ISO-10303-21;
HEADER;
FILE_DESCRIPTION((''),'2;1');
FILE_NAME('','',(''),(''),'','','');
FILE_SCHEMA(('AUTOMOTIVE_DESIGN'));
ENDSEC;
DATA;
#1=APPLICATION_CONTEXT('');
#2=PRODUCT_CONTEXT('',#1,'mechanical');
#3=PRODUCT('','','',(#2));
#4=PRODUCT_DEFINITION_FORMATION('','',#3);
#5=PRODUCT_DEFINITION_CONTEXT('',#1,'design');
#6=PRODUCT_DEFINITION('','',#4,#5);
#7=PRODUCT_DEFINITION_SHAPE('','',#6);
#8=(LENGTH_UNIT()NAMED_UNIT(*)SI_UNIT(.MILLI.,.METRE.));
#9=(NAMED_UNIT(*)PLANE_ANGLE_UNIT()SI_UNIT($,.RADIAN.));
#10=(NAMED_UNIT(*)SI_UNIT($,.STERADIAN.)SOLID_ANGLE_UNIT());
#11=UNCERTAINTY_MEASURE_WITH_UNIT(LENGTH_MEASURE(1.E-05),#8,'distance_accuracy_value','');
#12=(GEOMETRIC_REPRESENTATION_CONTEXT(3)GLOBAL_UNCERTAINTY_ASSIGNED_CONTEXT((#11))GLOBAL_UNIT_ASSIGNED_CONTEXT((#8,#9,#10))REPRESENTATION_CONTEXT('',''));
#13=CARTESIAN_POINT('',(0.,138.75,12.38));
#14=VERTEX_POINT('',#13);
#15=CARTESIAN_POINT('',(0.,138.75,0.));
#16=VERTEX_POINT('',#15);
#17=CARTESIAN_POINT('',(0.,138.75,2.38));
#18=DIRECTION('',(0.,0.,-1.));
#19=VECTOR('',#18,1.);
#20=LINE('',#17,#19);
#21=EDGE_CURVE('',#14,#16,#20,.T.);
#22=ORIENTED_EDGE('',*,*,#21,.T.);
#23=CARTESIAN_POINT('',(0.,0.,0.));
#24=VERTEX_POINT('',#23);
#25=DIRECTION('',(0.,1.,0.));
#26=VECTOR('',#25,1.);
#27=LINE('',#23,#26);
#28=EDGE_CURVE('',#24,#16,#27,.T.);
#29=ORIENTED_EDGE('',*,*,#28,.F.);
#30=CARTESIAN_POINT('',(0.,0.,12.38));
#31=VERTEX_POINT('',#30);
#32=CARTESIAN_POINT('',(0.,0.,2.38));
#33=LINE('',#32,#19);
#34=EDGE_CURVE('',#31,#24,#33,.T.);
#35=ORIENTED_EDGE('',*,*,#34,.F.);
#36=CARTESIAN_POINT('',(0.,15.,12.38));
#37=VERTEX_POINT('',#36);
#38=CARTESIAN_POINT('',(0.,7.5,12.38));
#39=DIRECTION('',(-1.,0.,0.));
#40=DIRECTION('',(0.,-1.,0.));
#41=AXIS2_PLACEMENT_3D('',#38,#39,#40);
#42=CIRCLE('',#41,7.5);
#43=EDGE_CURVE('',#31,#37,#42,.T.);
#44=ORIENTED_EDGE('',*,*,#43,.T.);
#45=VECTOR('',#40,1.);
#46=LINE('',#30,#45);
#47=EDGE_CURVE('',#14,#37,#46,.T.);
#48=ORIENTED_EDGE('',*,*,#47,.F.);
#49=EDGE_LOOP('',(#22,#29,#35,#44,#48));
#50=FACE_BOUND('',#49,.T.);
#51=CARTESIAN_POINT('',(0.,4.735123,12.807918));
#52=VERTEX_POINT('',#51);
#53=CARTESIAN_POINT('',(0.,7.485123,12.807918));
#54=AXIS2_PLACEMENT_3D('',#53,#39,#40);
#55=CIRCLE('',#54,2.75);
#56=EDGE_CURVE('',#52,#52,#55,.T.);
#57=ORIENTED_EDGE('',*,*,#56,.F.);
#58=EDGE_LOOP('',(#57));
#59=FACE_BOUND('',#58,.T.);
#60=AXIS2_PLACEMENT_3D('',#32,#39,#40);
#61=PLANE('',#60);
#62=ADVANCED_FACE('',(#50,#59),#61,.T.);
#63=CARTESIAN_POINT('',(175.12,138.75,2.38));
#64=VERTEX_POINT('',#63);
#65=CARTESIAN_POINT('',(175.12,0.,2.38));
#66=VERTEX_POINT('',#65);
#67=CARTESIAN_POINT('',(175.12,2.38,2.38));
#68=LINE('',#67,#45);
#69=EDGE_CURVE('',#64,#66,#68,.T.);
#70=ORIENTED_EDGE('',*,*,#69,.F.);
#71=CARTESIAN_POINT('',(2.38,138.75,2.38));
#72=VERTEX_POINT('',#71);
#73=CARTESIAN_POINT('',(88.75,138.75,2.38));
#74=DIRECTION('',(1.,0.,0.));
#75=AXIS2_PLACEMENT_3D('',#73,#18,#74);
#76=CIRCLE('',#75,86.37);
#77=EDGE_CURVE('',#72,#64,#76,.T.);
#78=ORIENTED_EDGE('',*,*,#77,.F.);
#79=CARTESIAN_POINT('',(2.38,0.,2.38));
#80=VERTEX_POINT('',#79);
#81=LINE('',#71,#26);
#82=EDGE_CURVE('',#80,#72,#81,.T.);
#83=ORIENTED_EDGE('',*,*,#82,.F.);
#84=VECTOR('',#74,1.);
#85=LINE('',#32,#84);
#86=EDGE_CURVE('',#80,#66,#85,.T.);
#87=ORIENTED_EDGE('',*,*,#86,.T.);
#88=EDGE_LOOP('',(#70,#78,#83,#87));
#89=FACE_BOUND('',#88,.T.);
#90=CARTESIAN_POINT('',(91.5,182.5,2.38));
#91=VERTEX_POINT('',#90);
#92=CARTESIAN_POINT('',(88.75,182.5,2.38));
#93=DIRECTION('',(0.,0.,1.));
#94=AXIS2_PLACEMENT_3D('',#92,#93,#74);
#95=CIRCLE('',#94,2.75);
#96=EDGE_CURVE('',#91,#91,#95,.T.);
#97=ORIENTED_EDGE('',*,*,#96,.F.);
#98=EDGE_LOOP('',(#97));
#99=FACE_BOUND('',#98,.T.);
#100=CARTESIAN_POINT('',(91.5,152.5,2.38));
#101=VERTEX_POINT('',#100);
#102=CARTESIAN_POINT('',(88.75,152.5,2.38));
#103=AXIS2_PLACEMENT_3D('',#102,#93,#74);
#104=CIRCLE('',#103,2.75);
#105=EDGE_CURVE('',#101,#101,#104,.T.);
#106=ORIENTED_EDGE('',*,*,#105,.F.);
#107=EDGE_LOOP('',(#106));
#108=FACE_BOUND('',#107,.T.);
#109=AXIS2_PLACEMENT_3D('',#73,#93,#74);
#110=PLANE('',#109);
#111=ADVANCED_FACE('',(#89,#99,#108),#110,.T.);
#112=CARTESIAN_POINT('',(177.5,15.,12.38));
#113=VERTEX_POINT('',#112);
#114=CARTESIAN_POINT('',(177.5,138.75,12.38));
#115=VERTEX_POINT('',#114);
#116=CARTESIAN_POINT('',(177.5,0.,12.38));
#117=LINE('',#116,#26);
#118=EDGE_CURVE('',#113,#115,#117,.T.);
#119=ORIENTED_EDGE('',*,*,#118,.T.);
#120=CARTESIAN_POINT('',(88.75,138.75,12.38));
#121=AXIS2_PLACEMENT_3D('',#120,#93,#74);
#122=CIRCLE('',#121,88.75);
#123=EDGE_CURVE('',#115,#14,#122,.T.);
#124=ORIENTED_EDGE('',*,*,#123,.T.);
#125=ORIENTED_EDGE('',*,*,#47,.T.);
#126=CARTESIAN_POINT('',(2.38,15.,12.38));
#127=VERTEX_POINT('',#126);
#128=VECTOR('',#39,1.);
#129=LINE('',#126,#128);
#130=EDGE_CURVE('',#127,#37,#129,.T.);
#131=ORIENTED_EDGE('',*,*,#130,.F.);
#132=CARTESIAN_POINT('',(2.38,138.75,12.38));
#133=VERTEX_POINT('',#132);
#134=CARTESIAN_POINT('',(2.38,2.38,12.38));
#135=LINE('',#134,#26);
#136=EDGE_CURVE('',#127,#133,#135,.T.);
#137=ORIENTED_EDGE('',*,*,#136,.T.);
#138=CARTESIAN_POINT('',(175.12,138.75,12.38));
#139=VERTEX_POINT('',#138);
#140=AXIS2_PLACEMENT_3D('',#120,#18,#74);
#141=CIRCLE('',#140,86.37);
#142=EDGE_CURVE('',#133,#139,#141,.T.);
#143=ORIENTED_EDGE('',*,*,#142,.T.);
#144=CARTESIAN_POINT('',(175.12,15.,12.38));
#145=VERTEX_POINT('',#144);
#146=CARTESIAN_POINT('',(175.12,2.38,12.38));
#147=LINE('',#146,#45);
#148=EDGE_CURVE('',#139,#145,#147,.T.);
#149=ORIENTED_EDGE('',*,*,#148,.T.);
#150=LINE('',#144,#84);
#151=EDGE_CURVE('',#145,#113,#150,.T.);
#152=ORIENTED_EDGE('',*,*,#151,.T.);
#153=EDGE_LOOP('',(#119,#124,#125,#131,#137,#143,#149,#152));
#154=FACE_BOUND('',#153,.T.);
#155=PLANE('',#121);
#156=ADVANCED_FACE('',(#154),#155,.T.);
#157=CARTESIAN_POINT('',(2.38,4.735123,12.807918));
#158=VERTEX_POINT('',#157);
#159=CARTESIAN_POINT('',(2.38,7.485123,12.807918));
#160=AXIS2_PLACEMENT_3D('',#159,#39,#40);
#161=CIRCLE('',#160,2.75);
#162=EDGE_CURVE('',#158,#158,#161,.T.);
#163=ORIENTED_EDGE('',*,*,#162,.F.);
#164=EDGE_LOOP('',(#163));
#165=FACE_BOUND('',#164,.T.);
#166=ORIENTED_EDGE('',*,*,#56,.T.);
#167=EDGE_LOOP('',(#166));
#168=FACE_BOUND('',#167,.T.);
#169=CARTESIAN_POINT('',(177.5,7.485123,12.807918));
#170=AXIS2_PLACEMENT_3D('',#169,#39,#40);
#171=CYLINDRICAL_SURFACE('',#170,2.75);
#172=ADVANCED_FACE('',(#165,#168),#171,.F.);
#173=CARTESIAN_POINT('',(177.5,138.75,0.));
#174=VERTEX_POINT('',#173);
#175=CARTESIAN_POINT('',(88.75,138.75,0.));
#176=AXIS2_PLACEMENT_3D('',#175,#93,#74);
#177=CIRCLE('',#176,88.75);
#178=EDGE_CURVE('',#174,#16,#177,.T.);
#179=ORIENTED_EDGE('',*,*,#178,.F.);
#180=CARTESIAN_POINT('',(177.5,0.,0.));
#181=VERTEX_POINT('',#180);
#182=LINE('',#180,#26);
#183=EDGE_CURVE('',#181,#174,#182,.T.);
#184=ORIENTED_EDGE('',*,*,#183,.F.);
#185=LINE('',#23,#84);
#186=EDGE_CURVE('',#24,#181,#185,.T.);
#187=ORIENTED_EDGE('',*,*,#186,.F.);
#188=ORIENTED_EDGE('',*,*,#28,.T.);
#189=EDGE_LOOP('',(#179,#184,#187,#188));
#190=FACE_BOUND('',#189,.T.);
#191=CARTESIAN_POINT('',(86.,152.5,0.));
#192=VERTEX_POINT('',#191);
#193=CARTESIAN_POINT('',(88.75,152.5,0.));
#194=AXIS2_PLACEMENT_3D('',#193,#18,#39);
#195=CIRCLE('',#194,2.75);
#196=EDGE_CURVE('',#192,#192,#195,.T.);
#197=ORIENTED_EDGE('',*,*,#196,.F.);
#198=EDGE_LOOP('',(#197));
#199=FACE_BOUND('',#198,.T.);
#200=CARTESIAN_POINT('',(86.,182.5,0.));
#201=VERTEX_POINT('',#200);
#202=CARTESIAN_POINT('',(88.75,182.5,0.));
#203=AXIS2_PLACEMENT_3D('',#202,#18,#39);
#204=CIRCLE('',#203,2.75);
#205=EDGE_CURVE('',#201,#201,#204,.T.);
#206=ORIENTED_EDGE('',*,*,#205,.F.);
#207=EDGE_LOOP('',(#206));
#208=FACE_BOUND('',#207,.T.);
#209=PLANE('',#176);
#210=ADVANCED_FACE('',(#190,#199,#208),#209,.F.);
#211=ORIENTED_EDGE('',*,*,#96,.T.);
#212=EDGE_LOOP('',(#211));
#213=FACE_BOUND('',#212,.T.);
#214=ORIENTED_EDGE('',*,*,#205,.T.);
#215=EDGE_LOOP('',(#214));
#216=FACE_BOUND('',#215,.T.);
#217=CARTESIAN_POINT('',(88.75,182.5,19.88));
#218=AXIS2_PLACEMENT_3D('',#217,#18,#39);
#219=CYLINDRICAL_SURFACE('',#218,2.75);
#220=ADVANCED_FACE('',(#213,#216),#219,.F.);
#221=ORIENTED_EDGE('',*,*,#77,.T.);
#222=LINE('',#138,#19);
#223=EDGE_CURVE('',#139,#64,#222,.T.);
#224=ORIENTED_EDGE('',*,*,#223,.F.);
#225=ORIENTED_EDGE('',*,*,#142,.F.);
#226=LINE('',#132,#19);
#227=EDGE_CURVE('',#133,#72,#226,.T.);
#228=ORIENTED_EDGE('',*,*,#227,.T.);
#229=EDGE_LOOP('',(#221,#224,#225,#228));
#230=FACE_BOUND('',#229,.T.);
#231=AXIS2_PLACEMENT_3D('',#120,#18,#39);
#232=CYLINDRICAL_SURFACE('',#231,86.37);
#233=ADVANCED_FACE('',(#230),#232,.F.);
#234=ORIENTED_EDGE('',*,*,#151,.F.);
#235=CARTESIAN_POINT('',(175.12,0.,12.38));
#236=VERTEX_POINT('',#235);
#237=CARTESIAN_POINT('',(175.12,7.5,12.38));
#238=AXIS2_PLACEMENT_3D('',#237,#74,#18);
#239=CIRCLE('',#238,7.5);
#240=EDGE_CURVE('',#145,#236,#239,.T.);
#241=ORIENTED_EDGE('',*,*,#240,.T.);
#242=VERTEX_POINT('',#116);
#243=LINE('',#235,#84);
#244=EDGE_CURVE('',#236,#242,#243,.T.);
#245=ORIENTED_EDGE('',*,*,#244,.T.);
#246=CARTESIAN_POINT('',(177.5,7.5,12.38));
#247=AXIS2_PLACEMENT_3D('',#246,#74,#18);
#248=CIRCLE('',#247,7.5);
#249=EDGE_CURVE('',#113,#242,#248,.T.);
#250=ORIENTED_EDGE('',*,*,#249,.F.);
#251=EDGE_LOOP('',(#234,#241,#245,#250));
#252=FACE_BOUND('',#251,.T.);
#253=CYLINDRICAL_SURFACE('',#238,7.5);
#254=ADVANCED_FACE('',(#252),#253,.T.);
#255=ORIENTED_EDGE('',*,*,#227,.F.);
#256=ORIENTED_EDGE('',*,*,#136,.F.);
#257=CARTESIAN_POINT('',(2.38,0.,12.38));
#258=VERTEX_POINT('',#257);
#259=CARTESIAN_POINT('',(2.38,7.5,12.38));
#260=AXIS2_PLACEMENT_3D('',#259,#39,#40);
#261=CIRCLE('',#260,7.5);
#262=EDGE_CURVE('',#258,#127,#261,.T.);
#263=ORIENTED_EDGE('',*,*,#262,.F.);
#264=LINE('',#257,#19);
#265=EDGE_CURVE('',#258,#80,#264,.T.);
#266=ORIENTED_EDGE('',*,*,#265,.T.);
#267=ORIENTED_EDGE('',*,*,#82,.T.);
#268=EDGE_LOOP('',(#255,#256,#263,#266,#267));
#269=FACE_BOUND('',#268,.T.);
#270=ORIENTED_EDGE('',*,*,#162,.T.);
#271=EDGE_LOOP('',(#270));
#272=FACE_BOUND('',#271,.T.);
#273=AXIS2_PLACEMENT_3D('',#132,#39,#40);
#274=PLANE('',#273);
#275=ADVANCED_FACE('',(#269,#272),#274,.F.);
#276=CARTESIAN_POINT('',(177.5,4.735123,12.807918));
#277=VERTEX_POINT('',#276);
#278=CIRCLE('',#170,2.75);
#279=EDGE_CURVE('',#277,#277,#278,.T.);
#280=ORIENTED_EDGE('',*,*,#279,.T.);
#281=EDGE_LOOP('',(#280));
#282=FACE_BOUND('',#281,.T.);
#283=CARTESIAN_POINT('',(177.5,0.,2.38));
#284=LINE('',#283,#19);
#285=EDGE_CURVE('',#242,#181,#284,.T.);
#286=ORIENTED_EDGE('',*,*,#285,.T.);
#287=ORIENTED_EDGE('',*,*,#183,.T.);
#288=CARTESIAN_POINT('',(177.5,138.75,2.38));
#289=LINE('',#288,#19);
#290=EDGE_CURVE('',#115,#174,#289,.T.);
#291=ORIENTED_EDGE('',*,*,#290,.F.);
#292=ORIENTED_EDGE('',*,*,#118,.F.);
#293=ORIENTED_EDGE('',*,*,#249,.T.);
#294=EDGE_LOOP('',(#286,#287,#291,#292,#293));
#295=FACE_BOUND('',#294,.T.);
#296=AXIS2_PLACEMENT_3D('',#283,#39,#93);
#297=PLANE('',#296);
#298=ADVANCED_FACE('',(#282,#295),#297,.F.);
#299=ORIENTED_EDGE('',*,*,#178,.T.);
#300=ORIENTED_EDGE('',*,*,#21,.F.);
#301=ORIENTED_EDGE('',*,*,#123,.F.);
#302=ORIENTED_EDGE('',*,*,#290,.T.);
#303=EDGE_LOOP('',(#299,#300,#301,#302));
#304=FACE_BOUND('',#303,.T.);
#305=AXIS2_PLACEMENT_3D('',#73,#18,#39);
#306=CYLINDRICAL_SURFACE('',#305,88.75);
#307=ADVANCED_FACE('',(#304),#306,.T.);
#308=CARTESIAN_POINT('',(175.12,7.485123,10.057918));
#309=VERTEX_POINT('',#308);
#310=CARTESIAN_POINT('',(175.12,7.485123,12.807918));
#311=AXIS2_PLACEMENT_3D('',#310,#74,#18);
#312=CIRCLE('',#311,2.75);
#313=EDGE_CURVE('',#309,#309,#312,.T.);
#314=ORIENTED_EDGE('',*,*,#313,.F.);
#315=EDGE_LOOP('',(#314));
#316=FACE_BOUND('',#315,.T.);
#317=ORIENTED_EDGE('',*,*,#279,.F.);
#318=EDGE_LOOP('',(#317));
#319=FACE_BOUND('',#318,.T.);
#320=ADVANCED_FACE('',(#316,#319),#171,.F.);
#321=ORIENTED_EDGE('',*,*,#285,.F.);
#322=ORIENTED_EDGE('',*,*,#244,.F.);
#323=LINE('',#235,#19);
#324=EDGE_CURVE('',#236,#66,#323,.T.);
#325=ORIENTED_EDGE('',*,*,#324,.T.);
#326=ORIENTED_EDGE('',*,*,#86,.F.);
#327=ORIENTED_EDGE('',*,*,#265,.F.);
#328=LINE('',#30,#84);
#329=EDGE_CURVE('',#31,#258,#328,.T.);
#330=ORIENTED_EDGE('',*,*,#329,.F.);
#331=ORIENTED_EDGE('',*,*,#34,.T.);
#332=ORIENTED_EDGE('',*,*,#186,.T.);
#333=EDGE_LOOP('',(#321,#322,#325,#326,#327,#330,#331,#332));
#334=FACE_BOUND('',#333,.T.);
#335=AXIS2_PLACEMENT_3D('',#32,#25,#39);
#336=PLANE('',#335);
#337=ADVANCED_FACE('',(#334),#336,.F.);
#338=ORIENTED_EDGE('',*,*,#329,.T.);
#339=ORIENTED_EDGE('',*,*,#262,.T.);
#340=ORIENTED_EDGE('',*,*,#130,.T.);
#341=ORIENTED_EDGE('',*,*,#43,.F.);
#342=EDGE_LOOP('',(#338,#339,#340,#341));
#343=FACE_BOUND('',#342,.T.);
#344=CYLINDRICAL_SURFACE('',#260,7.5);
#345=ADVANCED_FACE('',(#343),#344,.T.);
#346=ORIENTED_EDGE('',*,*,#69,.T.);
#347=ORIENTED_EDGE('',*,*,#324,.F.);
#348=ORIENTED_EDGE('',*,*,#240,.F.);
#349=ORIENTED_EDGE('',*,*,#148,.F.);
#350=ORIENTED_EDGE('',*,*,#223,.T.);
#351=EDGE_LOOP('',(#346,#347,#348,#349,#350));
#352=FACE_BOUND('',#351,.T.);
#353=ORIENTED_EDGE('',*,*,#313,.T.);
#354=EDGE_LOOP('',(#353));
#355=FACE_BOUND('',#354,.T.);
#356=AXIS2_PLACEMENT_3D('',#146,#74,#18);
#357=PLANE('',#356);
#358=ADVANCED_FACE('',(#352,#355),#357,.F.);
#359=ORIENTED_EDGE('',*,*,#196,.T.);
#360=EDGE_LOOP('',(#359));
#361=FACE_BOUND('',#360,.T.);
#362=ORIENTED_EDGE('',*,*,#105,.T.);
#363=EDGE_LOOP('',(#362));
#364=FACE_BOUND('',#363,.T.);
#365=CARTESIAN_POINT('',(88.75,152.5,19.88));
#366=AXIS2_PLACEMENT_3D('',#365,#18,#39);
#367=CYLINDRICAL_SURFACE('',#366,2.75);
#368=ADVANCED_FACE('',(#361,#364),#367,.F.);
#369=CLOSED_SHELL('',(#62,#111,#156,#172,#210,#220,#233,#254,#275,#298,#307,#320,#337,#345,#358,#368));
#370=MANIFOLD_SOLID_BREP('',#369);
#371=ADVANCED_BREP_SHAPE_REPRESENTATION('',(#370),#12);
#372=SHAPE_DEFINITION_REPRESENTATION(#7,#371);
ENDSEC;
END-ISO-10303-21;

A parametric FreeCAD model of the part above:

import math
import FreeCAD as App
import Part
import Sketcher

V = App.Vector
Q = App.Units.Quantity

doc = App.newDocument("Part")
body = doc.addObject("PartDesign::Body", "Body")

sketch1 = body.newObject("Sketcher::SketchObject", "Sketch")
sketch1.AttachmentSupport = (doc.getObject("XY_Plane"), [""])
sketch1.MapMode = "FlatFace"
sketch1.addGeometry([
    Part.LineSegment(V(0, 0, 0), V(178, 0, 0)),
    Part.LineSegment(V(178, 0, 0), V(178, 139, 0)),
    Part.ArcOfCircle(Part.Circle(V(89, 139, 0), V(0, 0, 1), 89), math.radians(0), math.radians(180)),
    Part.LineSegment(V(0, 139, 0), V(0, 0, 0)),
], False)
sketch1.addConstraint([
    Sketcher.Constraint("Coincident", 0, 2, 1, 1),
    Sketcher.Constraint("Tangent", 1, 2, 2, 1),
    Sketcher.Constraint("Tangent", 2, 2, 3, 1),
    Sketcher.Constraint("Coincident", 3, 2, 0, 1),
    Sketcher.Constraint("Horizontal", 0),
    Sketcher.Constraint("Vertical", 1),
    Sketcher.Constraint("Vertical", 3),
    Sketcher.Constraint("Coincident", 3, 2, -1, 1),
    Sketcher.Constraint("Radius", 2, Q("88.75 mm")),
    Sketcher.Constraint("DistanceY", 1, 1, 1, 2, Q("138.75 mm")),
])
pad1 = body.newObject("PartDesign::Pad", "Pad")
pad1.Profile = sketch1
pad1.Length = 2.38

sketch2 = body.newObject("Sketcher::SketchObject", "Sketch001")
sketch2.AttachmentSupport = (doc.getObject("XY_Plane"), [""])
sketch2.MapMode = "FlatFace"
sketch2.AttachmentOffset = App.Placement(V(0, 0, 2.38), App.Rotation())
sketch2.addGeometry([
    Part.ArcOfCircle(Part.Circle(V(88.8, 138.8, 0), V(0, 0, 1), 86.4), math.radians(0), math.radians(180)),
    Part.LineSegment(V(175.1, 138.8, 0), V(175.1, 0, 0)),
    Part.LineSegment(V(175.1, 0, 0), V(177.5, 0, 0)),
    Part.LineSegment(V(177.5, 0, 0), V(177.5, 138.8, 0)),
    Part.ArcOfCircle(Part.Circle(V(88.8, 138.8, 0), V(0, 0, 1), 88.8), math.radians(0), math.radians(180)),
    Part.LineSegment(V(0, 138.8, 0), V(0, 0, 0)),
    Part.LineSegment(V(0, 0, 0), V(2.4, 0, 0)),
    Part.LineSegment(V(2.4, 0, 0), V(2.4, 138.8, 0)),
], False)
sketch2.addConstraint([
    Sketcher.Constraint("Tangent", 0, 1, 1, 1),
    Sketcher.Constraint("Coincident", 1, 2, 2, 1),
    Sketcher.Constraint("Coincident", 2, 2, 3, 1),
    Sketcher.Constraint("Tangent", 3, 2, 4, 1),
    Sketcher.Constraint("Tangent", 4, 2, 5, 1),
    Sketcher.Constraint("Coincident", 5, 2, 6, 1),
    Sketcher.Constraint("Coincident", 6, 2, 7, 1),
    Sketcher.Constraint("Tangent", 7, 2, 0, 2),
    Sketcher.Constraint("Vertical", 1),
    Sketcher.Constraint("Horizontal", 2),
    Sketcher.Constraint("Vertical", 3),
    Sketcher.Constraint("Vertical", 5),
    Sketcher.Constraint("Horizontal", 6),
    Sketcher.Constraint("Vertical", 7),
    Sketcher.Constraint("Coincident", 5, 2, -1, 1),
    Sketcher.Constraint("Coincident", 4, 3, 0, 3),
    Sketcher.Constraint("PointOnObject", 1, 2, -1),
    Sketcher.Constraint("Radius", 0, Q("86.37 mm")),
    Sketcher.Constraint("Radius", 4, Q("88.75 mm")),
    Sketcher.Constraint("DistanceY", 1, 2, 1, 1, Q("138.75 mm")),
])
pad2 = body.newObject("PartDesign::Pad", "Pad001")
pad2.Profile = sketch2
pad2.Length = 10

sketch3 = body.newObject("Sketcher::SketchObject", "Sketch002")
sketch3.AttachmentSupport = (doc.getObject("YZ_Plane"), [""])
sketch3.MapMode = "FlatFace"
sketch3.AttachmentOffset = App.Placement(V(0, 0, 177.5), App.Rotation())
sketch3.addGeometry([
    Part.LineSegment(V(0, 12, 0), V(15, 12, 0)),
    Part.ArcOfCircle(Part.Circle(V(8, 12, 0), V(0, 0, 1), 8), math.radians(0), math.radians(180)),
], False)
sketch3.addConstraint([
    Sketcher.Constraint("Coincident", 0, 1, 1, 2),
    Sketcher.Constraint("Coincident", 1, 1, 0, 2),
    Sketcher.Constraint("Horizontal", 0),
    Sketcher.Constraint("PointOnObject", 0, 1, -2),
    Sketcher.Constraint("Horizontal", 1, 3, 0, 1),
    Sketcher.Constraint("Radius", 1, Q("7.5 mm")),
    Sketcher.Constraint("DistanceY", -1, 1, 1, 3, Q("12.38 mm")),
])
pad3 = body.newObject("PartDesign::Pad", "Pad002")
pad3.Profile = sketch3
pad3.Length = 2.38
pad3.Reversed = True

sketch4 = body.newObject("Sketcher::SketchObject", "Sketch003")
sketch4.AttachmentSupport = (doc.getObject("YZ_Plane"), [""])
sketch4.MapMode = "FlatFace"
sketch4.addGeometry([
    Part.LineSegment(V(15, 12, 0), V(0, 12, 0)),
    Part.ArcOfCircle(Part.Circle(V(8, 12, 0), V(0, 0, 1), 8), math.radians(0), math.radians(180)),
], False)
sketch4.addConstraint([
    Sketcher.Constraint("Coincident", 0, 1, 1, 1),
    Sketcher.Constraint("Coincident", 1, 2, 0, 2),
    Sketcher.Constraint("Horizontal", 0),
    Sketcher.Constraint("PointOnObject", 1, 2, -2),
    Sketcher.Constraint("Horizontal", 1, 3, 0, 1),
    Sketcher.Constraint("Radius", 1, Q("7.5 mm")),
    Sketcher.Constraint("DistanceY", -1, 1, 1, 3, Q("12.38 mm")),
])
pad4 = body.newObject("PartDesign::Pad", "Pad003")
pad4.Profile = sketch4
pad4.Length = 2.38

sketch5 = body.newObject("Sketcher::SketchObject", "Sketch004")
sketch5.AttachmentSupport = (doc.getObject("YZ_Plane"), [""])
sketch5.MapMode = "FlatFace"
sketch5.addGeometry(Part.Circle(V(7.5, 12.8, 0), V(0, 0, 1), 2.8), False)
sketch5.addConstraint([
    Sketcher.Constraint("Diameter", 0, Q("5.5 mm")),
    Sketcher.Constraint("DistanceY", -1, 1, 0, 3, Q("12.807918 mm")),
    Sketcher.Constraint("DistanceX", -1, 1, 0, 3, Q("7.485123 mm")),
])
pocket1 = body.newObject("PartDesign::Pocket", "Pocket")
pocket1.Profile = sketch5
pocket1.Type = "ThroughAll"
pocket1.Reversed = True

sketch6 = body.newObject("Sketcher::SketchObject", "Sketch005")
sketch6.AttachmentSupport = (doc.getObject("XY_Plane"), [""])
sketch6.MapMode = "FlatFace"
sketch6.addGeometry([
    Part.Circle(V(88.8, 182.5, 0), V(0, 0, 1), 2.8),
    Part.Circle(V(88.8, 152.5, 0), V(0, 0, 1), 2.8),
], False)
sketch6.addConstraint([
    Sketcher.Constraint("Equal", 0, 1),
    Sketcher.Constraint("Vertical", 0, 3, 1, 3),
    Sketcher.Constraint("Diameter", 0, Q("5.5 mm")),
    Sketcher.Constraint("DistanceY", 1, 3, 0, 3, Q("30 mm")),
    Sketcher.Constraint("DistanceY", -1, 1, 0, 3, Q("182.5 mm")),
    Sketcher.Constraint("DistanceX", -1, 1, 0, 3, Q("88.75 mm")),
])
pocket2 = body.newObject("PartDesign::Pocket", "Pocket001")
pocket2.Profile = sketch6
pocket2.Type = "ThroughAll"
pocket2.Reversed = True

doc.recompute()
